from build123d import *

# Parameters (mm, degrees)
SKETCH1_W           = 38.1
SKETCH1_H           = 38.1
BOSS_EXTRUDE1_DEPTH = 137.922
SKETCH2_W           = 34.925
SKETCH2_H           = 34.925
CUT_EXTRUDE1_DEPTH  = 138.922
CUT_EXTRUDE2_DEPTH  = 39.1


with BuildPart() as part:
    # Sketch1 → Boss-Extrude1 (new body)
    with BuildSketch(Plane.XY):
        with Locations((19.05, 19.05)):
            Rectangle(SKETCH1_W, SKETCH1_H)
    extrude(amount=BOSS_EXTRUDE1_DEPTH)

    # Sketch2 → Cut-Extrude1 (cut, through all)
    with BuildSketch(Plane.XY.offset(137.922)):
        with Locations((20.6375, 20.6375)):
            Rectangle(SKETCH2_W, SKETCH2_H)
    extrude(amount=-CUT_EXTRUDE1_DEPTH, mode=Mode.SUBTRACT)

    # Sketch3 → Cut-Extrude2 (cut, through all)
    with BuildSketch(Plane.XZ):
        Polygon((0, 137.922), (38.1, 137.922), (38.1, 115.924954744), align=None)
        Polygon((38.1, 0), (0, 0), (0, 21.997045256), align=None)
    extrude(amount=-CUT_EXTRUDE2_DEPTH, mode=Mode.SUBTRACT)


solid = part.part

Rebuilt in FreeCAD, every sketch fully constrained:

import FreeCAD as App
import Part
import Sketcher
Q = App.Units.Quantity

doc = App.newDocument("Part")
body = doc.addObject("PartDesign::Body", "Body")

# Sketch on XY plane
sketch1 = body.newObject("Sketcher::SketchObject", "Sketch")
sketch1.AttachmentSupport = (doc.getObject("XY_Plane"), [""])
sketch1.MapMode = "FlatFace"
sketch1.addGeometry([
    Part.LineSegment(App.Vector(0, 38, 0), App.Vector(0, 0, 0)),
    Part.LineSegment(App.Vector(0, 0, 0), App.Vector(38, 0, 0)),
    Part.LineSegment(App.Vector(38, 0, 0), App.Vector(38, 38, 0)),
    Part.LineSegment(App.Vector(38, 38, 0), App.Vector(0, 38, 0)),
], False)
sketch1.addConstraint([
    Sketcher.Constraint("Coincident", 0, 2, 1, 1),
    Sketcher.Constraint("Coincident", 1, 2, 2, 1),
    Sketcher.Constraint("Coincident", 2, 2, 3, 1),
    Sketcher.Constraint("Coincident", 3, 2, 0, 1),
    Sketcher.Constraint("Vertical", 0),
    Sketcher.Constraint("Horizontal", 1),
    Sketcher.Constraint("Vertical", 2),
    Sketcher.Constraint("Horizontal", 3),
    Sketcher.Constraint("Coincident", 0, 2, -1, 1),
    Sketcher.Constraint("Equal", 3, 0),
    Sketcher.Constraint("DistanceX", 1, 1, 1, 2, Q("1.5 in")),
])
pad1 = body.newObject("PartDesign::Pad", "Pad")
pad1.Profile = sketch1
pad1.Length = Q("5.43 in")

# Sketch on XY plane
sketch2 = body.newObject("Sketcher::SketchObject", "Sketch001")
sketch2.AttachmentSupport = (doc.getObject("XY_Plane"), [""])
sketch2.MapMode = "FlatFace"
sketch2.AttachmentOffset = App.Placement(App.Vector(0, 0, 5.43 * 25.4), App.Rotation())
sketch2.addGeometry([
    Part.LineSegment(App.Vector(3, 38, 0), App.Vector(3, 3, 0)),
    Part.LineSegment(App.Vector(3, 3, 0), App.Vector(38, 3, 0)),
    Part.LineSegment(App.Vector(38, 3, 0), App.Vector(38, 38, 0)),
    Part.LineSegment(App.Vector(38, 38, 0), App.Vector(3, 38, 0)),
], False)
sketch2.addConstraint([
    Sketcher.Constraint("Coincident", 0, 2, 1, 1),
    Sketcher.Constraint("Coincident", 1, 2, 2, 1),
    Sketcher.Constraint("Coincident", 2, 2, 3, 1),
    Sketcher.Constraint("Coincident", 3, 2, 0, 1),
    Sketcher.Constraint("Vertical", 0),
    Sketcher.Constraint("Horizontal", 1),
    Sketcher.Constraint("Vertical", 2),
    Sketcher.Constraint("Horizontal", 3),
    Sketcher.Constraint("Equal", 3, 0),
    Sketcher.Constraint("DistanceX", -1, 1, 1, 2, Q("1.5 in")),
    Sketcher.Constraint("DistanceY", -1, 1, 2, 2, Q("1.5 in")),
    Sketcher.Constraint("DistanceX", 1, 1, 1, 2, Q("1.375 in")),
])
pocket1 = body.newObject("PartDesign::Pocket", "Pocket")
pocket1.Profile = sketch2
pocket1.Type = "ThroughAll"

# Sketch on XZ plane
sketch3 = body.newObject("Sketcher::SketchObject", "Sketch002")
sketch3.AttachmentSupport = (doc.getObject("XZ_Plane"), [""])
sketch3.MapMode = "FlatFace"
sketch3.addGeometry([
    Part.LineSegment(App.Vector(38, 138, 0), App.Vector(0, 138, 0)),  # 0
    Part.LineSegment(App.Vector(0, 138, 0), App.Vector(38, 116, 0)),  # 1
    Part.LineSegment(App.Vector(38, 116, 0), App.Vector(38, 138, 0)),  # 2
    Part.LineSegment(App.Vector(0, 0, 0), App.Vector(38, 0, 0)),  # 3
    Part.LineSegment(App.Vector(38, 0, 0), App.Vector(0, 22, 0)),  # 4
    Part.LineSegment(App.Vector(0, 22, 0), App.Vector(0, 0, 0)),  # 5
], False)
sketch3.addConstraint([
    Sketcher.Constraint("Coincident", 0, 2, 1, 1),
    Sketcher.Constraint("Coincident", 1, 2, 2, 1),
    Sketcher.Constraint("Coincident", 2, 2, 0, 1),
    Sketcher.Constraint("Coincident", 3, 2, 4, 1),
    Sketcher.Constraint("Coincident", 4, 2, 5, 1),
    Sketcher.Constraint("Coincident", 5, 2, 3, 1),
    Sketcher.Constraint("Horizontal", 0),
    Sketcher.Constraint("Vertical", 2),
    Sketcher.Constraint("Horizontal", 3),
    Sketcher.Constraint("Vertical", 5),
    Sketcher.Constraint("Coincident", 5, 2, -1, 1),
    Sketcher.Constraint("PointOnObject", 0, 2, -2),
    Sketcher.Constraint("Parallel", 1, 4),
    Sketcher.Constraint("Vertical", 2, 2, 3, 2),
    Sketcher.Constraint("DistanceX", 0, 2, 0, 1, Q("1.5 in")),
    Sketcher.Constraint("Angle", 1, Q("-30 deg")),
    Sketcher.Constraint("DistanceY", -1, 1, 0, 2, Q("5.43 in")),
])
pocket2 = body.newObject("PartDesign::Pocket", "Pocket001")
pocket2.Profile = sketch3
pocket2.Type = "ThroughAll"

doc.recompute()
